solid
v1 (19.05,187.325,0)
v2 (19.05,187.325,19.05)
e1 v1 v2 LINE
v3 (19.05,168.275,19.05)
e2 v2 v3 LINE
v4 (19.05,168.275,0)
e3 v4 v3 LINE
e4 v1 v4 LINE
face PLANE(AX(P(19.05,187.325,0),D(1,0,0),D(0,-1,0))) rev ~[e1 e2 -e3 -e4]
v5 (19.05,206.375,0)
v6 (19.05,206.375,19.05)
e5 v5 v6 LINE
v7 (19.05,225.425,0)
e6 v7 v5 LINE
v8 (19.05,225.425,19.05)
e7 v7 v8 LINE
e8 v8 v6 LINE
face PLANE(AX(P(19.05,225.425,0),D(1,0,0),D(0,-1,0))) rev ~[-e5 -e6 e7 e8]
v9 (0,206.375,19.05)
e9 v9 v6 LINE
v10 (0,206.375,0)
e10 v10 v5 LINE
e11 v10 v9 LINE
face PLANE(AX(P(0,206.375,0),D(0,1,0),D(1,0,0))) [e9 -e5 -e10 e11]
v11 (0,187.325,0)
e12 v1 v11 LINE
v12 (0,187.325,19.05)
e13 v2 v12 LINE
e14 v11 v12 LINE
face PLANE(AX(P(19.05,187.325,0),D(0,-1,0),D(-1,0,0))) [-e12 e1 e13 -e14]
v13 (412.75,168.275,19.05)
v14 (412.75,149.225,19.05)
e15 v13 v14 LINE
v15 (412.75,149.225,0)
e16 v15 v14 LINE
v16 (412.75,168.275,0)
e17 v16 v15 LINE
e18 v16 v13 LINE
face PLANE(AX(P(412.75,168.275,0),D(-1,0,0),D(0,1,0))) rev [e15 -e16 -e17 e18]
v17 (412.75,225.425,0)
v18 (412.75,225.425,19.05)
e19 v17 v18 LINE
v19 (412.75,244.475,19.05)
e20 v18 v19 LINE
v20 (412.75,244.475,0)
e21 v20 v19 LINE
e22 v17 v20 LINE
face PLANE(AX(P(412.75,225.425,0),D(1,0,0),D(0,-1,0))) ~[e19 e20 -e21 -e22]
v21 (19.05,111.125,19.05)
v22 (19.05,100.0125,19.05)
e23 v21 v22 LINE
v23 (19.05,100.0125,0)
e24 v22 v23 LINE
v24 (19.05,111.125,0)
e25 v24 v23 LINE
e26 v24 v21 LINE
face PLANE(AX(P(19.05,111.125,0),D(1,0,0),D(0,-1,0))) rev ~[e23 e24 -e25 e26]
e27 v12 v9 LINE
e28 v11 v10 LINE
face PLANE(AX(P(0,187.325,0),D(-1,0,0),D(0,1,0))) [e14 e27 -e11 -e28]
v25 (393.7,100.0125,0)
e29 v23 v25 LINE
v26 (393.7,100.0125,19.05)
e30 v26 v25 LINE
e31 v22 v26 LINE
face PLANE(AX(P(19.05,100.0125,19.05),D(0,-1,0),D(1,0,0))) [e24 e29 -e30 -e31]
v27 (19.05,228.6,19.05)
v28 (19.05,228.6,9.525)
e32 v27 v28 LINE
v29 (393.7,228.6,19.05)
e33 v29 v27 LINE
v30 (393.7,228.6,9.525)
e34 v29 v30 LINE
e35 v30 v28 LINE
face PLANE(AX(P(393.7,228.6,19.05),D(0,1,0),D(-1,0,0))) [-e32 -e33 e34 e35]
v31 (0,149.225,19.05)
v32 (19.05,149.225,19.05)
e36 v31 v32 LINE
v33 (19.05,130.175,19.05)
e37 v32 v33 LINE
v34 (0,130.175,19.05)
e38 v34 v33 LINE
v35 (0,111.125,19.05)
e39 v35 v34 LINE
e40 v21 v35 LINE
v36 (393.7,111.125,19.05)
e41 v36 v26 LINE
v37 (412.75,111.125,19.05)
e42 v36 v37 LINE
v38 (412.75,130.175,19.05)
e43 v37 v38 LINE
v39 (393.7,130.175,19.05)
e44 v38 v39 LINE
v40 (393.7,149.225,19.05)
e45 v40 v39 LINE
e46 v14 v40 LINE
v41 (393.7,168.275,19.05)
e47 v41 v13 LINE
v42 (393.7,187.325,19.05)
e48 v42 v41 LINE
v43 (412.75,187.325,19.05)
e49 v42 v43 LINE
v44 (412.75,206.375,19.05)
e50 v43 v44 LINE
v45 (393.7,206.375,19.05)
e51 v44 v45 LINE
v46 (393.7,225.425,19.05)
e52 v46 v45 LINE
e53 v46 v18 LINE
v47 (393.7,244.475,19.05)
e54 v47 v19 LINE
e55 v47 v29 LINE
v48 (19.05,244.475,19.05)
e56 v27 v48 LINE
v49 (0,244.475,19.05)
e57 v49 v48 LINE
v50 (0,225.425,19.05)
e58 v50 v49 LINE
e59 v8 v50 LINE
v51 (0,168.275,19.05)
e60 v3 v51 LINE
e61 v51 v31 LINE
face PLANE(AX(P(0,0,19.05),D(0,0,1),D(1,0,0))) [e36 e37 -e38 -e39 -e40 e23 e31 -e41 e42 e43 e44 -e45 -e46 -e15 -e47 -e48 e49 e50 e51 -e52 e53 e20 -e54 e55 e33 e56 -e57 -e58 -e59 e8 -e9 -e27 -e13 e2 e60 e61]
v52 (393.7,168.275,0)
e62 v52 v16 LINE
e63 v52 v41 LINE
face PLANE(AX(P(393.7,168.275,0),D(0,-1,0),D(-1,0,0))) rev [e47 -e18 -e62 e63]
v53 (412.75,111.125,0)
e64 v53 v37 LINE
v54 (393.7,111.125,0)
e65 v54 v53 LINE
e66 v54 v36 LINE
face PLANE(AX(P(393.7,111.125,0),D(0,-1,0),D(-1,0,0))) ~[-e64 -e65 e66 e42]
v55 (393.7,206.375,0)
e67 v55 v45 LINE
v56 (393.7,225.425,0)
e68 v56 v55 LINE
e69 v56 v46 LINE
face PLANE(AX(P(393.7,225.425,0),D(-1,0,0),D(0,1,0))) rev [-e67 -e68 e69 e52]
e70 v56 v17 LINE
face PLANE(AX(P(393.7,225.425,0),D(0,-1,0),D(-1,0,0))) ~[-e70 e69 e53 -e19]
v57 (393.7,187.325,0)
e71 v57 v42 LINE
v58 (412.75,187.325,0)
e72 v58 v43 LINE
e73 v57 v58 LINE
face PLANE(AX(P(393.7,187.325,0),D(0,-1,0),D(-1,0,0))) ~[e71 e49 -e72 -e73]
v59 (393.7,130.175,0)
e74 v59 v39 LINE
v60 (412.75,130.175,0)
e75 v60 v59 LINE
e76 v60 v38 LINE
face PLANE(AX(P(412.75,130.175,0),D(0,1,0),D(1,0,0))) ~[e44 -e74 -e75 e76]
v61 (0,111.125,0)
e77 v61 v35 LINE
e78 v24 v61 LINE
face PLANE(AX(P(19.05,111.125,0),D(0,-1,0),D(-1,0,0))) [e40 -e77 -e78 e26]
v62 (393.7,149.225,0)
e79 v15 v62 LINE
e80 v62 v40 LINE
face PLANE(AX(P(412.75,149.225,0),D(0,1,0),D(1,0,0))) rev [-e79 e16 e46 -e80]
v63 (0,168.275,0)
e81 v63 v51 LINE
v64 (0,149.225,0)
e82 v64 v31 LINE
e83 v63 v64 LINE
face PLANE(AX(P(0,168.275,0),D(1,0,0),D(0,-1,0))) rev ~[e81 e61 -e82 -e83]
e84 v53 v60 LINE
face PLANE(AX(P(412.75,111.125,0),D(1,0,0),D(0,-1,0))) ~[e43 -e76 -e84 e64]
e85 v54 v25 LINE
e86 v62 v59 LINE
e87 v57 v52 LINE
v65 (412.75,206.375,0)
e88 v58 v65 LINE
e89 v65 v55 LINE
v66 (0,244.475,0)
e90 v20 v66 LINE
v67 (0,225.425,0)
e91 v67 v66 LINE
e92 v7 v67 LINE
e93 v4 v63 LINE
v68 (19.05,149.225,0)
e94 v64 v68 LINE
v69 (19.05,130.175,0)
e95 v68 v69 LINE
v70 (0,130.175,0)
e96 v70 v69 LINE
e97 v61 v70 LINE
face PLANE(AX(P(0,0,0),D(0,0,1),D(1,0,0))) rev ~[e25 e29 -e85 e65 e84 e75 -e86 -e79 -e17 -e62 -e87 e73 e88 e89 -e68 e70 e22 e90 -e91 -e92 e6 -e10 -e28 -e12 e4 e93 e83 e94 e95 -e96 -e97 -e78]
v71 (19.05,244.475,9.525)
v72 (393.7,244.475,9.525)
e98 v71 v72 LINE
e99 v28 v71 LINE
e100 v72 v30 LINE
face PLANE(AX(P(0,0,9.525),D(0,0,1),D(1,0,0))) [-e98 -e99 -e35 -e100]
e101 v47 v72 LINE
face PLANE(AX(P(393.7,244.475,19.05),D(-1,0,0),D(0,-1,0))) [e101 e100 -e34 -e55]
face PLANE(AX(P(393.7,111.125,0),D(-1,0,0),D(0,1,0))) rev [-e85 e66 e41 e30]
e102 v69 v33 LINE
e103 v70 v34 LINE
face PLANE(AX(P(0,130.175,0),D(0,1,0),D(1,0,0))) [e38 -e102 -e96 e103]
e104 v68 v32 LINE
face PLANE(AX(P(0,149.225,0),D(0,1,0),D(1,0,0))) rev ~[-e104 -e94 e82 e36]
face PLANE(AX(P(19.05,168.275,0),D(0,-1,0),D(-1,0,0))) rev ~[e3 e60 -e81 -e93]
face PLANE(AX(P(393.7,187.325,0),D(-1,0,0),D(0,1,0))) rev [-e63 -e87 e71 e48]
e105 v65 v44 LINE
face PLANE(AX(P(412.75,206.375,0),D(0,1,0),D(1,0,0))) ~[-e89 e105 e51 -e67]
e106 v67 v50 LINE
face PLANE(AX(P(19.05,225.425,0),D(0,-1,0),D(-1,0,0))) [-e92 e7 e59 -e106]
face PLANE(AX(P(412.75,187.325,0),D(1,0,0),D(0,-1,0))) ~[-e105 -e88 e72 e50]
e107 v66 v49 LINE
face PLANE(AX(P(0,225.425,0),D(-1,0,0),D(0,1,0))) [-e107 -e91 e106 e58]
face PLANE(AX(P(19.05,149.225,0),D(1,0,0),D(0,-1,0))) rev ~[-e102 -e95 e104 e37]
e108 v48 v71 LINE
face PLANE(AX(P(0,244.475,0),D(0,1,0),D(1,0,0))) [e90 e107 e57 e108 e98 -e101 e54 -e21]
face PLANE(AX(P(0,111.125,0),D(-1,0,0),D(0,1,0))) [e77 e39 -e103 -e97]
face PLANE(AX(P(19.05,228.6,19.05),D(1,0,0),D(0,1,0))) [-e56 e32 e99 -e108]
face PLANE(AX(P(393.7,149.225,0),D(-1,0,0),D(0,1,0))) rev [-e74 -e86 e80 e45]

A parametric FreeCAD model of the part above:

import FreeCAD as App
import Part
import Sketcher
from FreeCAD import Vector
Q = App.Units.Quantity


def add_polygon(sketch, points):
    """Adds a closed chain of lines whose ends are joined by coincident constraints."""
    first, n = sketch.GeometryCount, len(points)
    for a, b in zip(points, points[1:] + points[:1]):
        sketch.addGeometry(Part.LineSegment(App.Vector(*a, 0), App.Vector(*b, 0)), False)
    for i in range(n):
        sketch.addConstraint(Sketcher.Constraint("Coincident", first + i, 2, first + (i + 1) % n, 1))

doc = App.newDocument("Part")
body = doc.addObject("PartDesign::Body", "Body")

sketch1 = body.newObject("Sketcher::SketchObject", "Sketch")
sketch1.AttachmentSupport = (doc.getObject("XY_Plane"), [""])
sketch1.MapMode = "FlatFace"
add_polygon(sketch1, [(0, 244), (0, 225), (19, 225), (19, 206), (0, 206), (0, 187), (19, 187), (19, 168), (0, 168), (0, 149), (19, 149), (19, 130), (0, 130), (0, 111), (19, 111), (19, 92), (0, 92), (0, 76), (206, 76), (206, 244)])
sketch1.addConstraint(Sketcher.Constraint("Vertical", 0))
sketch1.addConstraint(Sketcher.Constraint("Horizontal", 1))
sketch1.addConstraint(Sketcher.Constraint("Vertical", 2))
sketch1.addConstraint(Sketcher.Constraint("Horizontal", 3))
sketch1.addConstraint(Sketcher.Constraint("Vertical", 4))
sketch1.addConstraint(Sketcher.Constraint("Horizontal", 5))
sketch1.addConstraint(Sketcher.Constraint("Vertical", 6))
sketch1.addConstraint(Sketcher.Constraint("Horizontal", 7))
sketch1.addConstraint(Sketcher.Constraint("Vertical", 8))
sketch1.addConstraint(Sketcher.Constraint("Horizontal", 9))
sketch1.addConstraint(Sketcher.Constraint("Vertical", 10))
sketch1.addConstraint(Sketcher.Constraint("Horizontal", 11))
sketch1.addConstraint(Sketcher.Constraint("Vertical", 12))
sketch1.addConstraint(Sketcher.Constraint("Horizontal", 13))
sketch1.addConstraint(Sketcher.Constraint("Vertical", 14))
sketch1.addConstraint(Sketcher.Constraint("Horizontal", 15))
sketch1.addConstraint(Sketcher.Constraint("Vertical", 16))
sketch1.addConstraint(Sketcher.Constraint("Horizontal", 17))
sketch1.addConstraint(Sketcher.Constraint("Vertical", 18))
sketch1.addConstraint(Sketcher.Constraint("Horizontal", 19))
sketch1.addConstraint(Sketcher.Constraint("PointOnObject", 0, 2, -2))
sketch1.addConstraint(Sketcher.Constraint("PointOnObject", 3, 2, -2))
sketch1.addConstraint(Sketcher.Constraint("PointOnObject", 7, 2, -2))
sketch1.addConstraint(Sketcher.Constraint("PointOnObject", 11, 2, -2))
sketch1.addConstraint(Sketcher.Constraint("PointOnObject", 15, 2, -2))
sketch1.addConstraint(Sketcher.Constraint("Vertical", 2, 2, 5, 2))
sketch1.addConstraint(Sketcher.Constraint("Vertical", 6, 2, 9, 2))
sketch1.addConstraint(Sketcher.Constraint("Vertical", 10, 2, 13, 2))
sketch1.addConstraint(Sketcher.Constraint("Equal", 15, 0))
sketch1.addConstraint(Sketcher.Constraint("Equal", 0, 2))
sketch1.addConstraint(Sketcher.Constraint("Equal", 2, 4))
sketch1.addConstraint(Sketcher.Constraint("Equal", 4, 6))
sketch1.addConstraint(Sketcher.Constraint("Equal", 6, 8))
sketch1.addConstraint(Sketcher.Constraint("Equal", 8, 10))
sketch1.addConstraint(Sketcher.Constraint("Equal", 10, 12))
sketch1.addConstraint(Sketcher.Constraint("Equal", 12, 14))
sketch1.addConstraint(Sketcher.Constraint("DistanceX", 1, 1, 1, 2, Q("0.75 in")))
sketch1.addConstraint(Sketcher.Constraint("DistanceX", 17, 1, 17, 2, Q("8.125 in")))
sketch1.addConstraint(Sketcher.Constraint("DistanceY", 18, 1, 18, 2, Q("6.625 in")))
sketch1.addConstraint(Sketcher.Constraint("DistanceY", -1, 1, 2, 2, Q("8.125 in")))
pad1 = body.newObject("PartDesign::Pad", "Pad")
pad1.Profile = sketch1
pad1.Length = Q("0.75 in")
doc.recompute()

datumplane = body.newObject("PartDesign::Plane", "DatumPlane")
datumplane.AttachmentSupport = (doc.getObject("YZ_Plane"), [""])
datumplane.MapMode = "FlatFace"
datumplane.AttachmentOffset = App.Placement(Vector(0, 0, 8.125 * 25.4), App.Rotation())
mirrored = body.newObject("PartDesign::Mirrored", "Mirrored")
mirrored.Originals = [pad1]
mirrored.MirrorPlane = (datumplane, [""])
body.Tip = mirrored

sketch2 = body.newObject("Sketcher::SketchObject", "Sketch001")
sketch2.AttachmentSupport = (doc.getObject("XY_Plane"), [""])
sketch2.MapMode = "FlatFace"
sketch2.AttachmentOffset = App.Placement(Vector(0, 0, 0.75 * 25.4), App.Rotation())
add_polygon(sketch2, [(394, 244), (19, 244), (19, 229), (394, 229)])
sketch2.addConstraint(Sketcher.Constraint("Horizontal", 0))
sketch2.addConstraint(Sketcher.Constraint("Vertical", 1))
sketch2.addConstraint(Sketcher.Constraint("Horizontal", 2))
sketch2.addConstraint(Sketcher.Constraint("Vertical", 3))
sketch2.addConstraint(Sketcher.Constraint("DistanceY", 1, 2, 1, 1, Q("0.625 in")))
sketch2.addConstraint(Sketcher.Constraint("DistanceY", -1, 1, 1, 2, Q("9 in")))
sketch2.addConstraint(Sketcher.Constraint("DistanceX", 0, 2, 0, 1, Q("14.75 in")))
sketch2.addConstraint(Sketcher.Constraint("DistanceX", -1, 1, 2, 2, Q("15.5 in")))
pocket1 = body.newObject("PartDesign::Pocket", "Pocket")
pocket1.Profile = sketch2
pocket1.Length = Q("0.375 in")

sketch3 = body.newObject("Sketcher::SketchObject", "Sketch002")
sketch3.AttachmentSupport = (doc.getObject("XY_Plane"), [""])
sketch3.MapMode = "FlatFace"
sketch3.AttachmentOffset = App.Placement(Vector(0, 0, 0.75 * 25.4), App.Rotation())
add_polygon(sketch3, [(394, 100), (19, 100), (19, 92), (0, 92), (0, 76), (413, 76), (413, 92), (394, 92)])
sketch3.addConstraint(Sketcher.Constraint("Horizontal", 0))
sketch3.addConstraint(Sketcher.Constraint("Vertical", 1))
sketch3.addConstraint(Sketcher.Constraint("Horizontal", 2))
sketch3.addConstraint(Sketcher.Constraint("Vertical", 3))
sketch3.addConstraint(Sketcher.Constraint("Horizontal", 4))
sketch3.addConstraint(Sketcher.Constraint("Vertical", 5))
sketch3.addConstraint(Sketcher.Constraint("Horizontal", 6))
sketch3.addConstraint(Sketcher.Constraint("Vertical", 7))
sketch3.addConstraint(Sketcher.Constraint("PointOnObject", 2, 2, -2))
sketch3.addConstraint(Sketcher.Constraint("Horizontal", 2, 2, 5, 2))
sketch3.addConstraint(Sketcher.Constraint("Equal", 2, 6))
sketch3.addConstraint(Sketcher.Constraint("DistanceY", -1, 1, 3, 2, Q("3 in")))
sketch3.addConstraint(Sketcher.Constraint("DistanceX", 0, 2, 0, 1, Q("14.75 in")))
sketch3.addConstraint(Sketcher.Constraint("DistanceX", 2, 2, 2, 1, Q("0.75 in")))
sketch3.addConstraint(Sketcher.Constraint("DistanceY", 1, 2, 1, 1, Q("0.3125 in")))
sketch3.addConstraint(Sketcher.Constraint("DistanceY", 3, 2, 3, 1, Q("0.625 in")))
pocket2 = body.newObject("PartDesign::Pocket", "Pocket001")
pocket2.Profile = sketch3
pocket2.Type = "ThroughAll"

doc.recompute()
